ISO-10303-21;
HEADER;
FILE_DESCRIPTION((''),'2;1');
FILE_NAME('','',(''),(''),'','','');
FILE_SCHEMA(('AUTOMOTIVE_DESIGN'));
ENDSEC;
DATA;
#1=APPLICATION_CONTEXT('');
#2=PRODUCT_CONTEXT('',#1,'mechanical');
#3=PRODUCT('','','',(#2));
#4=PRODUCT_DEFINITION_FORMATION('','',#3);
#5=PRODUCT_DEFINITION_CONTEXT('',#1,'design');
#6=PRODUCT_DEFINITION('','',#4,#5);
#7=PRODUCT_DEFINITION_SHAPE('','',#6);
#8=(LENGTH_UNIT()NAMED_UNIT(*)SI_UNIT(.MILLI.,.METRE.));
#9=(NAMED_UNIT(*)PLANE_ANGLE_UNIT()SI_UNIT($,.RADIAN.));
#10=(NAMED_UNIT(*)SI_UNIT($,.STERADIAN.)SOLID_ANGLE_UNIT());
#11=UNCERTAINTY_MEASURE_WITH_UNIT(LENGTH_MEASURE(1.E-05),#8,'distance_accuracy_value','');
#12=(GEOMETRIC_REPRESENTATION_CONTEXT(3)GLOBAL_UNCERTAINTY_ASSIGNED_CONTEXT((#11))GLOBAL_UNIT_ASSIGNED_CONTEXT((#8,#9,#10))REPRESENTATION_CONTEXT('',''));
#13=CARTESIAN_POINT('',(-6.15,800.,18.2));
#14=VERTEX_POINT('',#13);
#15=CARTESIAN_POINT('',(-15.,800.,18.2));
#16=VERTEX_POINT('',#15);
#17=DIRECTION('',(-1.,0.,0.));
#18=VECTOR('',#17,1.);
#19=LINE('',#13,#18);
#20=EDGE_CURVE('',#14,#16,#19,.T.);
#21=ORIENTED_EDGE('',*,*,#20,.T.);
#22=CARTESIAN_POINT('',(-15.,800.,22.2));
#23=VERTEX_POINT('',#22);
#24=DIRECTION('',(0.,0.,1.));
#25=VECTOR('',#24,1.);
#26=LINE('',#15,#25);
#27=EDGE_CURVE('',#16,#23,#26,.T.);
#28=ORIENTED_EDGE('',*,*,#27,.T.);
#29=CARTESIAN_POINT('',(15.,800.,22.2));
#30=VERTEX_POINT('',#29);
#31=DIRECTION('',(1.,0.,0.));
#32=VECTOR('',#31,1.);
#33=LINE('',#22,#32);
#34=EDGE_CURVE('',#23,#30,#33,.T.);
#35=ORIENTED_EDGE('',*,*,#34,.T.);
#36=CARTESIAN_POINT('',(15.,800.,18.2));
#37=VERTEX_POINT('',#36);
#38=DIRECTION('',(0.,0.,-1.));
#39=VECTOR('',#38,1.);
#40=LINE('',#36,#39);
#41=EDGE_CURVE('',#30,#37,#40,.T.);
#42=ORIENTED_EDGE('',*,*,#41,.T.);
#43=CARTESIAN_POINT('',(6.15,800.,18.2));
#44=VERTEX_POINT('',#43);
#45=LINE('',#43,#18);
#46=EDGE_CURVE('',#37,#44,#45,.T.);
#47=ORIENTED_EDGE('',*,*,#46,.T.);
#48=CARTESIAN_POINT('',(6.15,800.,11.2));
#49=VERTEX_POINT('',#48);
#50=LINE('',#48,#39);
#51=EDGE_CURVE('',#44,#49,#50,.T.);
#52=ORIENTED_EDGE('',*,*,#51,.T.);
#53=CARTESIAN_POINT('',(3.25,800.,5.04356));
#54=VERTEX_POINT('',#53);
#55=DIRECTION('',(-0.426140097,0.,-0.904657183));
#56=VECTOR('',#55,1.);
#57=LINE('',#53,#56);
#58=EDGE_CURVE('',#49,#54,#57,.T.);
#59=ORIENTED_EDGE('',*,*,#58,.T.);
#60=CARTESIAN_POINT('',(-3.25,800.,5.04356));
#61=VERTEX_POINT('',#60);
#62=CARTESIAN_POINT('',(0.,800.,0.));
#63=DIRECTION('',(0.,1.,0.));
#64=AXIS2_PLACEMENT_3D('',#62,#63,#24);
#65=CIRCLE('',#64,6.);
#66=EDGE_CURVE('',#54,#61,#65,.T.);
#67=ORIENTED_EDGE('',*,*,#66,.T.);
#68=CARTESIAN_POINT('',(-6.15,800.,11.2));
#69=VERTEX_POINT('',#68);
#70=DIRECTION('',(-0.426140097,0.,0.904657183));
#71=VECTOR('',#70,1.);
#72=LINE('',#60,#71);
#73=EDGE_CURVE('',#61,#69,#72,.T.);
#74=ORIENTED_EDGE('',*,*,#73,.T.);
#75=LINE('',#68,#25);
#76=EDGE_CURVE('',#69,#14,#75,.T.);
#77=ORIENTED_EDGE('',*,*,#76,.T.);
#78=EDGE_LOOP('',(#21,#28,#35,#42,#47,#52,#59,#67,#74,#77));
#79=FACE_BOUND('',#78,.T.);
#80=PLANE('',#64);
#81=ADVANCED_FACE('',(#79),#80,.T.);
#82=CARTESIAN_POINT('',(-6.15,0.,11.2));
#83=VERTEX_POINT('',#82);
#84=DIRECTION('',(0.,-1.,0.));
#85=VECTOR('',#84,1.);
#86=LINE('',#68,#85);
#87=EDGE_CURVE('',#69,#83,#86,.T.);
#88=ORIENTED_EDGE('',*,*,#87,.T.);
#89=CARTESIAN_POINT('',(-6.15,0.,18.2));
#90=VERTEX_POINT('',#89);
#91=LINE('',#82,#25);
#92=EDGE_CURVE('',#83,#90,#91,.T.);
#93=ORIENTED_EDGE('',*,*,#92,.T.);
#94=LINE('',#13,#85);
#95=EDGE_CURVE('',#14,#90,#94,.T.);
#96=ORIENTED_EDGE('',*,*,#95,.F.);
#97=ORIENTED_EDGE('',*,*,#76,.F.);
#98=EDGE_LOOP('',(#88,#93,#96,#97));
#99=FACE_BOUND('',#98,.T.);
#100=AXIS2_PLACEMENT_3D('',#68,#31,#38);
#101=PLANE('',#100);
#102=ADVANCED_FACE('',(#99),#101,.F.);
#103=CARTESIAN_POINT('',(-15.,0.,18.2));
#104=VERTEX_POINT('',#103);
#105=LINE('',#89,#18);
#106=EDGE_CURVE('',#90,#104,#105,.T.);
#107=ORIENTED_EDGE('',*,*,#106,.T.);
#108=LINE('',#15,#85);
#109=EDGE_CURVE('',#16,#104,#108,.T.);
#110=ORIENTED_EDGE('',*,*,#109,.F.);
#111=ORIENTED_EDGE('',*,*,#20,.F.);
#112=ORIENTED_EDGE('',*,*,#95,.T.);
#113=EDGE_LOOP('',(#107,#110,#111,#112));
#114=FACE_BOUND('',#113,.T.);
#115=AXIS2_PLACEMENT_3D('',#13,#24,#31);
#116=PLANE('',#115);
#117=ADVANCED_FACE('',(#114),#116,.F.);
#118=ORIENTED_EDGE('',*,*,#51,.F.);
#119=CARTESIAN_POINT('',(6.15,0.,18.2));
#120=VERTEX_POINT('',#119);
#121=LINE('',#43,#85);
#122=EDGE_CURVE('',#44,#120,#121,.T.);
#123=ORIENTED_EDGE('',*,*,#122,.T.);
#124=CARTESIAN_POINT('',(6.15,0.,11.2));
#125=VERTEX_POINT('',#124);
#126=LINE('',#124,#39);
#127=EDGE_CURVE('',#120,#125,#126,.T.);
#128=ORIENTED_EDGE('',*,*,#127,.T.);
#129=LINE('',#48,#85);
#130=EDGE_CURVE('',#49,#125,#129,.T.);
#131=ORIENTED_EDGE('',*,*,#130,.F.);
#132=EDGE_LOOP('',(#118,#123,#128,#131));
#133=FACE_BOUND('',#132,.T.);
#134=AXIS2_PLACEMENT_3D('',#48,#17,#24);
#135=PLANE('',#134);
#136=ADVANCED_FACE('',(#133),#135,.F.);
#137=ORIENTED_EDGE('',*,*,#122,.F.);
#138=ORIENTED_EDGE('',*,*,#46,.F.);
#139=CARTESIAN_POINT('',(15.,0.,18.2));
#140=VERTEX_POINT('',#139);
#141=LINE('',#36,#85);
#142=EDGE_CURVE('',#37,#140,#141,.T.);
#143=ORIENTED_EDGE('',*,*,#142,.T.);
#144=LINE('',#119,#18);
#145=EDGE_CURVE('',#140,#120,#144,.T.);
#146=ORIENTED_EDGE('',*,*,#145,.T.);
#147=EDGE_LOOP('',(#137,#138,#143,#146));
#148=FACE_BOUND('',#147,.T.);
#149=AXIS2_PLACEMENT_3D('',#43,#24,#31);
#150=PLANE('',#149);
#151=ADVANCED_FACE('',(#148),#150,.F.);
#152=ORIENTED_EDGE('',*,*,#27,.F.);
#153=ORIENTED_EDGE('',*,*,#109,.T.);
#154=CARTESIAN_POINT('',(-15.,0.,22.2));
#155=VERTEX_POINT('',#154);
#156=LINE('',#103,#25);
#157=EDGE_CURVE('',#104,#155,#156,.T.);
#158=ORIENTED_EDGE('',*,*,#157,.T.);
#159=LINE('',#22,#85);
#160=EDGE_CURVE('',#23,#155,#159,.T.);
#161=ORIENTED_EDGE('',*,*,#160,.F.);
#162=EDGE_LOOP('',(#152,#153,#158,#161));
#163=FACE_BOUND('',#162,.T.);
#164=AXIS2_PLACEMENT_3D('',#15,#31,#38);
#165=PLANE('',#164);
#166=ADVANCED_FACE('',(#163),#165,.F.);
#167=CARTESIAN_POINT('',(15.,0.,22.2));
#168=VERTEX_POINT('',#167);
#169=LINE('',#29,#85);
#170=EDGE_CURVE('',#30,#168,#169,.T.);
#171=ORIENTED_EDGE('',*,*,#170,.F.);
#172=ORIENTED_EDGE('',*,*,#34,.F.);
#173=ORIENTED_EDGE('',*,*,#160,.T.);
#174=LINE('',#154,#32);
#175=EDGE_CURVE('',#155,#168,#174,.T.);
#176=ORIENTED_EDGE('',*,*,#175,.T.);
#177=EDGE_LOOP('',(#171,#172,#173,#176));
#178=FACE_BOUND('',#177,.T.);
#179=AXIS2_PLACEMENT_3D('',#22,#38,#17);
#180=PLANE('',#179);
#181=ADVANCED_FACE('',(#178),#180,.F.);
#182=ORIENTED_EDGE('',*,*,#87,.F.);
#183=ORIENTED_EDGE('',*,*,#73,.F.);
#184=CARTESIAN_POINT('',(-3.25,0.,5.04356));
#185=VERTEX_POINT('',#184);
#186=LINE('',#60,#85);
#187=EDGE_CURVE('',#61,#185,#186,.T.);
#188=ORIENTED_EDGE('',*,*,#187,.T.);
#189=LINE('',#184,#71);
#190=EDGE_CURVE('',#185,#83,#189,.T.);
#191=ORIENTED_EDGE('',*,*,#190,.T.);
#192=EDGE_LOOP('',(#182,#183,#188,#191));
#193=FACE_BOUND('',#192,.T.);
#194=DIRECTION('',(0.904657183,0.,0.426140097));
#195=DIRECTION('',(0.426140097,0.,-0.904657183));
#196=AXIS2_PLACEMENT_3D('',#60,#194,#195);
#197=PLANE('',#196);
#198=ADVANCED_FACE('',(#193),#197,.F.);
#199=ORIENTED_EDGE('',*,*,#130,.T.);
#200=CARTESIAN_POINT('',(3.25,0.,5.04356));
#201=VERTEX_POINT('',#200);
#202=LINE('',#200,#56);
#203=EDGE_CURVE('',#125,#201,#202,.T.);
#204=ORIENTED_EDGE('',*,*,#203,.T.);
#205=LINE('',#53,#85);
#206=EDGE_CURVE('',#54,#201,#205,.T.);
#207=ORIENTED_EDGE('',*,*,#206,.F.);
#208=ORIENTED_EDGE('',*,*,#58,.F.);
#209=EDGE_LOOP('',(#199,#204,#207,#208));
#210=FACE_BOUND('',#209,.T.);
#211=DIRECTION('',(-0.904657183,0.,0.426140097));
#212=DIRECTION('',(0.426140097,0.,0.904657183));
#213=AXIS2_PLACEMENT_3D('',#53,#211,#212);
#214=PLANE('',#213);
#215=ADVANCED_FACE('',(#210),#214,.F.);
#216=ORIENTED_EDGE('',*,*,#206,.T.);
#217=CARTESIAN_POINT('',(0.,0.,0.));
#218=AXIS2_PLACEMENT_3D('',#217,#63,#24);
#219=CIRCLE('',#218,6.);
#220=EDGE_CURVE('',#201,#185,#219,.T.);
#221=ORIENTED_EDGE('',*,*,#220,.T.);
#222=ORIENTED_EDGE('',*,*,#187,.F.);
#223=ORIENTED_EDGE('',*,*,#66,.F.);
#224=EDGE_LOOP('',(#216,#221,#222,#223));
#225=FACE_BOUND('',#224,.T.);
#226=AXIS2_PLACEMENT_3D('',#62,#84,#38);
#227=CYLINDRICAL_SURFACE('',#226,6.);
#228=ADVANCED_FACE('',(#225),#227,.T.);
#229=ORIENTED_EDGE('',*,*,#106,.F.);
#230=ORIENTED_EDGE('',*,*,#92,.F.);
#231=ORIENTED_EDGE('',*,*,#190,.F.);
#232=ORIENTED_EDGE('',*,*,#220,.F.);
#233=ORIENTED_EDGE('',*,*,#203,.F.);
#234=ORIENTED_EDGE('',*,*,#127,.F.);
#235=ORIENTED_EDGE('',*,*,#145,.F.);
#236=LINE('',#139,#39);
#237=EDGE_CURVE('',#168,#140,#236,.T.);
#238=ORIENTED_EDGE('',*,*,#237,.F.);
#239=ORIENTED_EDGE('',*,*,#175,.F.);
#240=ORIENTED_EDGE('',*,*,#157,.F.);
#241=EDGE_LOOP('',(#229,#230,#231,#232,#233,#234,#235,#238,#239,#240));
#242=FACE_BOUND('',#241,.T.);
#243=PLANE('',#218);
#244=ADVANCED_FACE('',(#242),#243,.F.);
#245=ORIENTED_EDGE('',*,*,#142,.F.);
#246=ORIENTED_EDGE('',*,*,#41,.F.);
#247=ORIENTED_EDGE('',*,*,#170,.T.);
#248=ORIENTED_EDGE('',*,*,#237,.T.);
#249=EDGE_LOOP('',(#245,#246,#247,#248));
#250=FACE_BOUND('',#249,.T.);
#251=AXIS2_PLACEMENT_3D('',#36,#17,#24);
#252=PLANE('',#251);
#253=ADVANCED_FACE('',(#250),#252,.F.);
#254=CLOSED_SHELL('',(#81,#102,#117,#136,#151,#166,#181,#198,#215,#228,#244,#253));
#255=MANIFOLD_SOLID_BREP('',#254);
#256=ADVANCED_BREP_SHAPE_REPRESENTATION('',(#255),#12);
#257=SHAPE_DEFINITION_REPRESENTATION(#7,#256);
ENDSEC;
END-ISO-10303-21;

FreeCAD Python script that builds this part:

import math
import FreeCAD as App
import Part
import Sketcher
from FreeCAD import Vector
Q = App.Units.Quantity

doc = App.newDocument("Part")
body = doc.addObject("PartDesign::Body", "Body")

# Sketch on XZ plane
sketch1 = doc.addObject("Sketcher::SketchObject", "Sketch")
body.addObject(sketch1)
sketch1.AttachmentSupport = (doc.XZ_Plane, [""])
sketch1.MapMode = "FlatFace"
sketch1.addGeometry(Part.LineSegment(Vector(-3.2, 5, 0), Vector(-6.2, 11.2, 0)), False)
sketch1.addGeometry(Part.LineSegment(Vector(-6.2, 11.2, 0), Vector(-6.2, 18.2, 0)), False)
sketch1.addGeometry(Part.LineSegment(Vector(-6.2, 18.2, 0), Vector(-15, 18.2, 0)), False)
sketch1.addGeometry(Part.LineSegment(Vector(-15, 18.2, 0), Vector(-15, 22.2, 0)), False)
sketch1.addGeometry(Part.LineSegment(Vector(-15, 22.2, 0), Vector(15, 22.2, 0)), False)
sketch1.addGeometry(Part.LineSegment(Vector(15, 22.2, 0), Vector(15, 18.2, 0)), False)
sketch1.addGeometry(Part.LineSegment(Vector(15, 18.2, 0), Vector(6.2, 18.2, 0)), False)
sketch1.addGeometry(Part.LineSegment(Vector(6.2, 18.2, 0), Vector(6.2, 11.2, 0)), False)
sketch1.addGeometry(Part.LineSegment(Vector(6.2, 11.2, 0), Vector(3.2, 5, 0)), False)
sketch1.addGeometry(Part.ArcOfCircle(Part.Circle(Vector(0, 0, 0), Vector(0, 0, 1), 6), math.radians(123), math.radians(417)), False)
sketch1.addConstraint(Sketcher.Constraint("Coincident", 0, 2, 1, 1))
sketch1.addConstraint(Sketcher.Constraint("Coincident", 1, 2, 2, 1))
sketch1.addConstraint(Sketcher.Constraint("Coincident", 2, 2, 3, 1))
sketch1.addConstraint(Sketcher.Constraint("Coincident", 3, 2, 4, 1))
sketch1.addConstraint(Sketcher.Constraint("Coincident", 4, 2, 5, 1))
sketch1.addConstraint(Sketcher.Constraint("Coincident", 5, 2, 6, 1))
sketch1.addConstraint(Sketcher.Constraint("Coincident", 6, 2, 7, 1))
sketch1.addConstraint(Sketcher.Constraint("Coincident", 7, 2, 8, 1))
sketch1.addConstraint(Sketcher.Constraint("Coincident", 8, 2, 9, 2))
sketch1.addConstraint(Sketcher.Constraint("Coincident", 9, 1, 0, 1))
sketch1.addConstraint(Sketcher.Constraint("Vertical", 1))
sketch1.addConstraint(Sketcher.Constraint("Horizontal", 2))
sketch1.addConstraint(Sketcher.Constraint("Vertical", 3))
sketch1.addConstraint(Sketcher.Constraint("Horizontal", 4))
sketch1.addConstraint(Sketcher.Constraint("Vertical", 5))
sketch1.addConstraint(Sketcher.Constraint("Horizontal", 6))
sketch1.addConstraint(Sketcher.Constraint("Vertical", 7))
sketch1.addConstraint(Sketcher.Constraint("Coincident", 9, 3, -1, 1))
sketch1.addConstraint(Sketcher.Constraint("Symmetric", 2, 2, 5, 2, -2))
sketch1.addConstraint(Sketcher.Constraint("Symmetric", 0, 2, 7, 2, -2))
sketch1.addConstraint(Sketcher.Constraint("Horizontal", 8, 2, 9, 1))
sketch1.addConstraint(Sketcher.Constraint("Radius", 9, Q("6 mm")))
sketch1.addConstraint(Sketcher.Constraint("DistanceX", 4, 1, 4, 2, Q("30 mm")))
sketch1.addConstraint(Sketcher.Constraint("DistanceY", 1, 1, 1, 2, Q("7 mm")))
sketch1.addConstraint(Sketcher.Constraint("DistanceY", 3, 1, 3, 2, Q("4 mm")))
sketch1.addConstraint(Sketcher.Constraint("DistanceX", 2, 2, 2, 1, Q("8.85 mm")))
sketch1.addConstraint(Sketcher.Constraint("DistanceY", -1, 1, 0, 2, Q("11.2 mm")))
sketch1.addConstraint(Sketcher.Constraint("DistanceX", 8, 2, 7, 2, Q("2.9 mm")))
pad1 = doc.addObject("PartDesign::Pad", "Pad")
body.addObject(pad1)
pad1.Profile = sketch1
pad1.Length = 800
pad1.Reversed = True

doc.recompute()
